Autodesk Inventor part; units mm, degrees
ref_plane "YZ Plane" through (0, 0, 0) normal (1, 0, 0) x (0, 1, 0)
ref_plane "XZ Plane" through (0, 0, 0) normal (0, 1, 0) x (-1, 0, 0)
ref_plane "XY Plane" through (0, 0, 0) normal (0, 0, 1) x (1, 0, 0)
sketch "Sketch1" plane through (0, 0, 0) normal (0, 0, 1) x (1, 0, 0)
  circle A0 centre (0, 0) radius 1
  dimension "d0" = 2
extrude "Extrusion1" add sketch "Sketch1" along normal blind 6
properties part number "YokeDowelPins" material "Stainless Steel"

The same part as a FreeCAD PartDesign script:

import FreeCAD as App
import Part
import Sketcher

V = App.Vector
Q = App.Units.Quantity

doc = App.newDocument("Part")
body = doc.addObject("PartDesign::Body", "Body")

sketch1 = body.newObject("Sketcher::SketchObject", "Sketch")
sketch1.AttachmentSupport = (doc.getObject("XY_Plane"), [""])
sketch1.MapMode = "FlatFace"
sketch1.addGeometry(Part.Circle(V(0, 0, 0), V(0, 0, 1), 1), False)
sketch1.addConstraint([
    Sketcher.Constraint("Coincident", 0, 3, -1, 1),
    Sketcher.Constraint("Diameter", 0, Q("2 mm")),
])
pad1 = body.newObject("PartDesign::Pad", "Pad")
pad1.Profile = sketch1
pad1.Length = 6

doc.recompute()
